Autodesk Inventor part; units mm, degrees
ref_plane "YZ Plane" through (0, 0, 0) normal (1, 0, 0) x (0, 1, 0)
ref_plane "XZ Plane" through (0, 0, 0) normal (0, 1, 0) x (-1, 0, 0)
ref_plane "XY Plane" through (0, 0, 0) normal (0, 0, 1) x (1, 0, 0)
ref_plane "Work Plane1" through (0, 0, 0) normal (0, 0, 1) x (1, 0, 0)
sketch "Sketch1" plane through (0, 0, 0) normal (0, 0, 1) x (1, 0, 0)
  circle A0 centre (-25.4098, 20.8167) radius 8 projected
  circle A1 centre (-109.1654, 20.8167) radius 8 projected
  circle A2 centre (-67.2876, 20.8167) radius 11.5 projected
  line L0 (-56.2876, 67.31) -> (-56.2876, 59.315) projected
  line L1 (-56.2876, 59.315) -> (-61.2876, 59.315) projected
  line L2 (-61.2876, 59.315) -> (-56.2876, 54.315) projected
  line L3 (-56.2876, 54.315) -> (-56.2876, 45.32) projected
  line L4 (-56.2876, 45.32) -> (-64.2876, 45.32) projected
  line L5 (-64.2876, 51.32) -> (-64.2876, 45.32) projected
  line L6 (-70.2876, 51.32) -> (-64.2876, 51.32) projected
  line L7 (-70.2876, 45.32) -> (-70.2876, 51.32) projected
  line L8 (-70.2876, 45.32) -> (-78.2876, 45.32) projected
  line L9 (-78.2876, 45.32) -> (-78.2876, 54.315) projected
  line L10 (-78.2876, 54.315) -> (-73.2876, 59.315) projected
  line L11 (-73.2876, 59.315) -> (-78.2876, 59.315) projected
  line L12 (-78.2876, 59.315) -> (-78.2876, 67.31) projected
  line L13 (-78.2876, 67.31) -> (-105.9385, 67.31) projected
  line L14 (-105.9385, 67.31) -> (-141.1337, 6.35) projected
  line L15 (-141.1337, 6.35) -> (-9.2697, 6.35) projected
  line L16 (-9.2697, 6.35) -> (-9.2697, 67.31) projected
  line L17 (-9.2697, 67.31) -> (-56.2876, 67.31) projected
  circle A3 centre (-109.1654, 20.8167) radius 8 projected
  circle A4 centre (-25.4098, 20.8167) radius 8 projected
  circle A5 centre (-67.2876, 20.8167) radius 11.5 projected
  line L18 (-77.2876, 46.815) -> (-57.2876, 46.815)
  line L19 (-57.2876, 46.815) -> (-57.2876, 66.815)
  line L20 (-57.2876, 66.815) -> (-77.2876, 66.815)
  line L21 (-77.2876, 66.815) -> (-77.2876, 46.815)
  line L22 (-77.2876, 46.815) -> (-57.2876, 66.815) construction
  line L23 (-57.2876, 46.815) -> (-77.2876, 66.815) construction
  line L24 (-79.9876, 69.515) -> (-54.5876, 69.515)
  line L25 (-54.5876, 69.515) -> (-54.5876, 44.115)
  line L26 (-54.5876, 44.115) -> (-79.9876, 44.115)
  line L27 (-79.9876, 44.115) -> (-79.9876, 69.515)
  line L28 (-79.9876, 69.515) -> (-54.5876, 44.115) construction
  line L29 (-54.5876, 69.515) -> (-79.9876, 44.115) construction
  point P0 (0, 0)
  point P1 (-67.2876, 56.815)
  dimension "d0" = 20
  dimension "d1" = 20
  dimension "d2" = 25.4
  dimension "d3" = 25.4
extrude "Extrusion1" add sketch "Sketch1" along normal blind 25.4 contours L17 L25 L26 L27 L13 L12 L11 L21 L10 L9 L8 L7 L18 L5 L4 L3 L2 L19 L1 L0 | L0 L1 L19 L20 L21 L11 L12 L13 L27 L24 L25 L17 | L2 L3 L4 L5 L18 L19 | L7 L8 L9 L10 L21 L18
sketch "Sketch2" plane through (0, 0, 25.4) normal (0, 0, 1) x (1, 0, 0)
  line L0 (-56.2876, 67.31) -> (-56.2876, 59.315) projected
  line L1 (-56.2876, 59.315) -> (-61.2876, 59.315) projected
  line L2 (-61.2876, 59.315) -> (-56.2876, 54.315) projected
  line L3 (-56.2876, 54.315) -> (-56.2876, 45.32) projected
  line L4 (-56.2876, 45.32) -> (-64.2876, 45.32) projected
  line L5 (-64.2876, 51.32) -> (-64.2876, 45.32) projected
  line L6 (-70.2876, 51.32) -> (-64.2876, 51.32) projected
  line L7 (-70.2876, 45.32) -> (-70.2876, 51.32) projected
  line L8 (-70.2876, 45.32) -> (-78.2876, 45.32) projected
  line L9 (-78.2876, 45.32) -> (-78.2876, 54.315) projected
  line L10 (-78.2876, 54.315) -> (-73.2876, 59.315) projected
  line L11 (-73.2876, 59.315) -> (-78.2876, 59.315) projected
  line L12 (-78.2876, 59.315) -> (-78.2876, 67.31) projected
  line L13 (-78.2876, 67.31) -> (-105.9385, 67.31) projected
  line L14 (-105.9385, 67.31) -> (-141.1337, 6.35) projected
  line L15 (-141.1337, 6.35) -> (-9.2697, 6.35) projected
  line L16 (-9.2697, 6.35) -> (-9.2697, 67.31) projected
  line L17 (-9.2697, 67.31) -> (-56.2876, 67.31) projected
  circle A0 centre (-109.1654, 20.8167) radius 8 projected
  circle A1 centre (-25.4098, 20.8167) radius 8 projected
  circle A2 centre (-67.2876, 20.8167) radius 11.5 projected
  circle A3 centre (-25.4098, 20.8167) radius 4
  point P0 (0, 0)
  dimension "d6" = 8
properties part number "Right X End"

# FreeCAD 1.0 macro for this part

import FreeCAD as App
import Part
import Sketcher
from FreeCAD import Vector
Q = App.Units.Quantity

doc = App.newDocument("Part")
body = doc.addObject("PartDesign::Body", "Body")

sketch1 = body.newObject("Sketcher::SketchObject", "Sketch")
sketch1.AttachmentSupport = (doc.getObject("XY_Plane"), [""])
sketch1.MapMode = "FlatFace"
sketch1.addGeometry(Part.LineSegment(Vector(-55, 44, 0), Vector(-55, 70, 0)), False)
sketch1.addGeometry(Part.LineSegment(Vector(-55, 70, 0), Vector(-80, 70, 0)), False)
sketch1.addGeometry(Part.LineSegment(Vector(-80, 70, 0), Vector(-80, 44, 0)), False)
sketch1.addGeometry(Part.LineSegment(Vector(-80, 44, 0), Vector(-55, 44, 0)), False)
sketch1.addGeometry(Part.LineSegment(Vector(-77, 67, 0), Vector(-57, 67, 0)), False)
sketch1.addGeometry(Part.LineSegment(Vector(-57, 67, 0), Vector(-57, 47, 0)), False)
sketch1.addGeometry(Part.LineSegment(Vector(-57, 47, 0), Vector(-77, 47, 0)), False)
sketch1.addGeometry(Part.LineSegment(Vector(-77, 47, 0), Vector(-77, 67, 0)), False)
sketch1.addConstraint(Sketcher.Constraint("Coincident", 0, 2, 1, 1))
sketch1.addConstraint(Sketcher.Constraint("Coincident", 1, 2, 2, 1))
sketch1.addConstraint(Sketcher.Constraint("Coincident", 2, 2, 3, 1))
sketch1.addConstraint(Sketcher.Constraint("Coincident", 3, 2, 0, 1))
sketch1.addConstraint(Sketcher.Constraint("Coincident", 4, 2, 5, 1))
sketch1.addConstraint(Sketcher.Constraint("Coincident", 5, 2, 6, 1))
sketch1.addConstraint(Sketcher.Constraint("Coincident", 6, 2, 7, 1))
sketch1.addConstraint(Sketcher.Constraint("Coincident", 7, 2, 4, 1))
sketch1.addConstraint(Sketcher.Constraint("Vertical", 0))
sketch1.addConstraint(Sketcher.Constraint("Horizontal", 1))
sketch1.addConstraint(Sketcher.Constraint("Vertical", 2))
sketch1.addConstraint(Sketcher.Constraint("Horizontal", 3))
sketch1.addConstraint(Sketcher.Constraint("Horizontal", 4))
sketch1.addConstraint(Sketcher.Constraint("Vertical", 5))
sketch1.addConstraint(Sketcher.Constraint("Horizontal", 6))
sketch1.addConstraint(Sketcher.Constraint("Vertical", 7))
sketch1.addConstraint(Sketcher.Constraint("Equal", 3, 0))
sketch1.addConstraint(Sketcher.Constraint("Equal", 6, 5))
sketch1.addConstraint(Sketcher.Constraint("DistanceX", 1, 2, 1, 1, Q("1 in")))
sketch1.addConstraint(Sketcher.Constraint("DistanceX", 4, 1, 4, 2, Q("0.7874 in")))
sketch1.addConstraint(Sketcher.Constraint("DistanceY", -1, 1, 0, 2, Q("2.7368 in")))
sketch1.addConstraint(Sketcher.Constraint("DistanceY", -1, 1, 4, 2, Q("2.6305 in")))
sketch1.addConstraint(Sketcher.Constraint("DistanceX", 4, 2, 0, 2, Q("0.1063 in")))
sketch1.addConstraint(Sketcher.Constraint("DistanceX", 0, 2, -1, 1, Q("54.5876 mm")))
pad1 = body.newObject("PartDesign::Pad", "Pad")
pad1.Profile = sketch1
pad1.Length = Q("1 in")

doc.recompute()
